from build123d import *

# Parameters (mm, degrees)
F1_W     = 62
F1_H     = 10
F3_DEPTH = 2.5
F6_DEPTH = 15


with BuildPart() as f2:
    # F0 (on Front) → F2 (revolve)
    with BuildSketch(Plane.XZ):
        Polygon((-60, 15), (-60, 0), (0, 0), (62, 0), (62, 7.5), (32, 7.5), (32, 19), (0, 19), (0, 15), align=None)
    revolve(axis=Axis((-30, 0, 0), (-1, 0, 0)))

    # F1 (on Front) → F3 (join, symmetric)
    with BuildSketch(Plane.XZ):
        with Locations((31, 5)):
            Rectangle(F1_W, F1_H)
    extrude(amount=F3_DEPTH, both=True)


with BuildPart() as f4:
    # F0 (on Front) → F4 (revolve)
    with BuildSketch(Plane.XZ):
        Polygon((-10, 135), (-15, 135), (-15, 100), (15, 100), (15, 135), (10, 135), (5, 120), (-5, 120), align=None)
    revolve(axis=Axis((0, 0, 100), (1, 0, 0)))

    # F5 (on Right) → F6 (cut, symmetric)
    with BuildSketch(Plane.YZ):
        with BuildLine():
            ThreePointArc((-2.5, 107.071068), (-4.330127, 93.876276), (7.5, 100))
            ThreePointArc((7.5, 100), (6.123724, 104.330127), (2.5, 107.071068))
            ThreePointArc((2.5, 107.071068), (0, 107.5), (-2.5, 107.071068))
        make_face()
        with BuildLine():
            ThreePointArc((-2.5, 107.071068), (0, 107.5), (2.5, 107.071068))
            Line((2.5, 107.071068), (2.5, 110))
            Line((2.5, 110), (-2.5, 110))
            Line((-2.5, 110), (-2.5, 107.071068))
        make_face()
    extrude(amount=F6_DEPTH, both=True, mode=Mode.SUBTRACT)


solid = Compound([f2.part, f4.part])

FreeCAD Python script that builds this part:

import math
import FreeCAD as App
import Part
import Sketcher
from FreeCAD import Vector
Q = App.Units.Quantity


def add_polygon(sketch, points):
    """Adds a closed chain of lines whose ends are joined by coincident constraints."""
    first, n = sketch.GeometryCount, len(points)
    for a, b in zip(points, points[1:] + points[:1]):
        sketch.addGeometry(Part.LineSegment(App.Vector(*a, 0), App.Vector(*b, 0)), False)
    for i in range(n):
        sketch.addConstraint(Sketcher.Constraint("Coincident", first + i, 2, first + (i + 1) % n, 1))

doc = App.newDocument("Part")
body = doc.addObject("PartDesign::Body", "Body")

sketch1 = body.newObject("Sketcher::SketchObject", "Sketch")
sketch1.AttachmentSupport = (doc.getObject("XZ_Plane"), [""])
sketch1.MapMode = "FlatFace"
add_polygon(sketch1, [(-60, 15), (-60, 0), (62, 0), (62, 7.5), (32, 7.5), (32, 19), (0, 19), (0, 15)])
sketch1.addConstraint(Sketcher.Constraint("Vertical", 0))
sketch1.addConstraint(Sketcher.Constraint("Horizontal", 1))
sketch1.addConstraint(Sketcher.Constraint("Vertical", 2))
sketch1.addConstraint(Sketcher.Constraint("Horizontal", 3))
sketch1.addConstraint(Sketcher.Constraint("Vertical", 4))
sketch1.addConstraint(Sketcher.Constraint("Horizontal", 5))
sketch1.addConstraint(Sketcher.Constraint("Vertical", 6))
sketch1.addConstraint(Sketcher.Constraint("Horizontal", 7))
sketch1.addConstraint(Sketcher.Constraint("PointOnObject", 0, 2, -1))
sketch1.addConstraint(Sketcher.Constraint("PointOnObject", 5, 2, -2))
sketch1.addConstraint(Sketcher.Constraint("DistanceX", 1, 1, 1, 2, Q("122 mm")))
sketch1.addConstraint(Sketcher.Constraint("DistanceX", 3, 2, 3, 1, Q("30 mm")))
sketch1.addConstraint(Sketcher.Constraint("DistanceX", 5, 2, 5, 1, Q("32 mm")))
sketch1.addConstraint(Sketcher.Constraint("DistanceY", 0, 2, 0, 1, Q("15 mm")))
sketch1.addConstraint(Sketcher.Constraint("DistanceY", 6, 2, 6, 1, Q("4 mm")))
sketch1.addConstraint(Sketcher.Constraint("DistanceY", 2, 1, 2, 2, Q("7.5 mm")))
revolution = body.newObject("PartDesign::Revolution", "Revolution")
revolution.Profile = sketch1
revolution.ReferenceAxis = (sketch1, ["H_Axis"])
revolution.Angle = 360

sketch2 = body.newObject("Sketcher::SketchObject", "Sketch001")
sketch2.AttachmentSupport = (doc.getObject("XZ_Plane"), [""])
sketch2.MapMode = "FlatFace"
add_polygon(sketch2, [(0, 10), (0, 0), (62, 0), (62, 10)])
sketch2.addConstraint(Sketcher.Constraint("Vertical", 0))
sketch2.addConstraint(Sketcher.Constraint("Horizontal", 1))
sketch2.addConstraint(Sketcher.Constraint("Vertical", 2))
sketch2.addConstraint(Sketcher.Constraint("Horizontal", 3))
sketch2.addConstraint(Sketcher.Constraint("Coincident", 0, 2, -1, 1))
sketch2.addConstraint(Sketcher.Constraint("DistanceX", 1, 1, 1, 2, Q("62 mm")))
sketch2.addConstraint(Sketcher.Constraint("DistanceY", 0, 2, 0, 1, Q("10 mm")))
pad1 = body.newObject("PartDesign::Pad", "Pad")
pad1.Profile = sketch2
pad1.Length = 5
pad1.Midplane = True
body2 = doc.addObject("PartDesign::Body", "Body001")

sketch3 = body2.newObject("Sketcher::SketchObject", "Sketch002")
sketch3.AttachmentSupport = (doc.getObject("XZ_Plane001"), [""])
sketch3.MapMode = "FlatFace"
add_polygon(sketch3, [(-10, 135), (-15, 135), (-15, 100), (15, 100), (15, 135), (10, 135), (5, 120), (-5, 120)])
sketch3.addGeometry(Part.LineSegment(Vector(-15, 100, 0), Vector(15, 100, 0)), True)
sketch3.addConstraint(Sketcher.Constraint("Horizontal", 0))
sketch3.addConstraint(Sketcher.Constraint("Vertical", 1))
sketch3.addConstraint(Sketcher.Constraint("Horizontal", 2))
sketch3.addConstraint(Sketcher.Constraint("Vertical", 3))
sketch3.addConstraint(Sketcher.Constraint("Horizontal", 4))
sketch3.addConstraint(Sketcher.Constraint("Horizontal", 6))
sketch3.addConstraint(Sketcher.Constraint("Horizontal", 8))
sketch3.addConstraint(Sketcher.Constraint("Coincident", 8, 1, 1, 2))
sketch3.addConstraint(Sketcher.Constraint("Symmetric", 0, 2, 3, 2, -2))
sketch3.addConstraint(Sketcher.Constraint("Vertical", 3, 2, 8, 2))
sketch3.addConstraint(Sketcher.Constraint("Equal", 0, 4))
sketch3.addConstraint(Sketcher.Constraint("Equal", 5, 7))
sketch3.addConstraint(Sketcher.Constraint("DistanceX", 0, 2, 0, 1, Q("5 mm")))
sketch3.addConstraint(Sketcher.Constraint("DistanceX", 2, 1, 2, 2, Q("30 mm")))
sketch3.addConstraint(Sketcher.Constraint("DistanceX", 6, 2, 6, 1, Q("10 mm")))
sketch3.addConstraint(Sketcher.Constraint("DistanceY", 1, 2, 1, 1, Q("35 mm")))
sketch3.addConstraint(Sketcher.Constraint("DistanceY", -1, 1, 0, 2, Q("135 mm")))
sketch3.addConstraint(Sketcher.Constraint("DistanceY", -1, 1, 5, 2, Q("120 mm")))
revolution2 = body2.newObject("PartDesign::Revolution", "Revolution001")
revolution2.Profile = sketch3
revolution2.ReferenceAxis = (sketch3, ["Axis0"])
revolution2.Angle = 360

sketch4 = body2.newObject("Sketcher::SketchObject", "Sketch003")
sketch4.AttachmentSupport = (doc.getObject("YZ_Plane001"), [""])
sketch4.MapMode = "FlatFace"
sketch4.addGeometry(Part.ArcOfCircle(Part.Circle(Vector(0, 100, 0), Vector(0, 0, 1), 7.5), math.radians(109), math.radians(360)), False)
sketch4.addGeometry(Part.ArcOfCircle(Part.Circle(Vector(0, 100, 0), Vector(0, 0, 1), 7.5), math.radians(0), math.radians(71)), False)
sketch4.addGeometry(Part.LineSegment(Vector(2.5, 107.1, 0), Vector(2.5, 110, 0)), False)
sketch4.addGeometry(Part.LineSegment(Vector(2.5, 110, 0), Vector(-2.5, 110, 0)), False)
sketch4.addGeometry(Part.LineSegment(Vector(-2.5, 110, 0), Vector(-2.5, 107.1, 0)), False)
sketch4.addConstraint(Sketcher.Constraint("Tangent", 0, 2, 1, 1))
sketch4.addConstraint(Sketcher.Constraint("Coincident", 1, 2, 2, 1))
sketch4.addConstraint(Sketcher.Constraint("Coincident", 2, 2, 3, 1))
sketch4.addConstraint(Sketcher.Constraint("Coincident", 3, 2, 4, 1))
sketch4.addConstraint(Sketcher.Constraint("Coincident", 4, 2, 0, 1))
sketch4.addConstraint(Sketcher.Constraint("Vertical", 2))
sketch4.addConstraint(Sketcher.Constraint("Horizontal", 3))
sketch4.addConstraint(Sketcher.Constraint("Vertical", 4))
sketch4.addConstraint(Sketcher.Constraint("Equal", 0, 1))
sketch4.addConstraint(Sketcher.Constraint("Symmetric", 1, 2, 4, 2, -2))
sketch4.addConstraint(Sketcher.Constraint("Horizontal", 1, 3, 0, 2))
sketch4.addConstraint(Sketcher.Constraint("Radius", 0, Q("7.5 mm")))
sketch4.addConstraint(Sketcher.Constraint("DistanceX", 3, 2, 3, 1, Q("5 mm")))
sketch4.addConstraint(Sketcher.Constraint("DistanceY", -1, 1, 0, 3, Q("100 mm")))
sketch4.addConstraint(Sketcher.Constraint("DistanceY", -1, 1, 2, 2, Q("110 mm")))
pocket1 = body2.newObject("PartDesign::Pocket", "Pocket")
pocket1.Profile = sketch4
pocket1.Length = 30
pocket1.Midplane = True

doc.recompute()
